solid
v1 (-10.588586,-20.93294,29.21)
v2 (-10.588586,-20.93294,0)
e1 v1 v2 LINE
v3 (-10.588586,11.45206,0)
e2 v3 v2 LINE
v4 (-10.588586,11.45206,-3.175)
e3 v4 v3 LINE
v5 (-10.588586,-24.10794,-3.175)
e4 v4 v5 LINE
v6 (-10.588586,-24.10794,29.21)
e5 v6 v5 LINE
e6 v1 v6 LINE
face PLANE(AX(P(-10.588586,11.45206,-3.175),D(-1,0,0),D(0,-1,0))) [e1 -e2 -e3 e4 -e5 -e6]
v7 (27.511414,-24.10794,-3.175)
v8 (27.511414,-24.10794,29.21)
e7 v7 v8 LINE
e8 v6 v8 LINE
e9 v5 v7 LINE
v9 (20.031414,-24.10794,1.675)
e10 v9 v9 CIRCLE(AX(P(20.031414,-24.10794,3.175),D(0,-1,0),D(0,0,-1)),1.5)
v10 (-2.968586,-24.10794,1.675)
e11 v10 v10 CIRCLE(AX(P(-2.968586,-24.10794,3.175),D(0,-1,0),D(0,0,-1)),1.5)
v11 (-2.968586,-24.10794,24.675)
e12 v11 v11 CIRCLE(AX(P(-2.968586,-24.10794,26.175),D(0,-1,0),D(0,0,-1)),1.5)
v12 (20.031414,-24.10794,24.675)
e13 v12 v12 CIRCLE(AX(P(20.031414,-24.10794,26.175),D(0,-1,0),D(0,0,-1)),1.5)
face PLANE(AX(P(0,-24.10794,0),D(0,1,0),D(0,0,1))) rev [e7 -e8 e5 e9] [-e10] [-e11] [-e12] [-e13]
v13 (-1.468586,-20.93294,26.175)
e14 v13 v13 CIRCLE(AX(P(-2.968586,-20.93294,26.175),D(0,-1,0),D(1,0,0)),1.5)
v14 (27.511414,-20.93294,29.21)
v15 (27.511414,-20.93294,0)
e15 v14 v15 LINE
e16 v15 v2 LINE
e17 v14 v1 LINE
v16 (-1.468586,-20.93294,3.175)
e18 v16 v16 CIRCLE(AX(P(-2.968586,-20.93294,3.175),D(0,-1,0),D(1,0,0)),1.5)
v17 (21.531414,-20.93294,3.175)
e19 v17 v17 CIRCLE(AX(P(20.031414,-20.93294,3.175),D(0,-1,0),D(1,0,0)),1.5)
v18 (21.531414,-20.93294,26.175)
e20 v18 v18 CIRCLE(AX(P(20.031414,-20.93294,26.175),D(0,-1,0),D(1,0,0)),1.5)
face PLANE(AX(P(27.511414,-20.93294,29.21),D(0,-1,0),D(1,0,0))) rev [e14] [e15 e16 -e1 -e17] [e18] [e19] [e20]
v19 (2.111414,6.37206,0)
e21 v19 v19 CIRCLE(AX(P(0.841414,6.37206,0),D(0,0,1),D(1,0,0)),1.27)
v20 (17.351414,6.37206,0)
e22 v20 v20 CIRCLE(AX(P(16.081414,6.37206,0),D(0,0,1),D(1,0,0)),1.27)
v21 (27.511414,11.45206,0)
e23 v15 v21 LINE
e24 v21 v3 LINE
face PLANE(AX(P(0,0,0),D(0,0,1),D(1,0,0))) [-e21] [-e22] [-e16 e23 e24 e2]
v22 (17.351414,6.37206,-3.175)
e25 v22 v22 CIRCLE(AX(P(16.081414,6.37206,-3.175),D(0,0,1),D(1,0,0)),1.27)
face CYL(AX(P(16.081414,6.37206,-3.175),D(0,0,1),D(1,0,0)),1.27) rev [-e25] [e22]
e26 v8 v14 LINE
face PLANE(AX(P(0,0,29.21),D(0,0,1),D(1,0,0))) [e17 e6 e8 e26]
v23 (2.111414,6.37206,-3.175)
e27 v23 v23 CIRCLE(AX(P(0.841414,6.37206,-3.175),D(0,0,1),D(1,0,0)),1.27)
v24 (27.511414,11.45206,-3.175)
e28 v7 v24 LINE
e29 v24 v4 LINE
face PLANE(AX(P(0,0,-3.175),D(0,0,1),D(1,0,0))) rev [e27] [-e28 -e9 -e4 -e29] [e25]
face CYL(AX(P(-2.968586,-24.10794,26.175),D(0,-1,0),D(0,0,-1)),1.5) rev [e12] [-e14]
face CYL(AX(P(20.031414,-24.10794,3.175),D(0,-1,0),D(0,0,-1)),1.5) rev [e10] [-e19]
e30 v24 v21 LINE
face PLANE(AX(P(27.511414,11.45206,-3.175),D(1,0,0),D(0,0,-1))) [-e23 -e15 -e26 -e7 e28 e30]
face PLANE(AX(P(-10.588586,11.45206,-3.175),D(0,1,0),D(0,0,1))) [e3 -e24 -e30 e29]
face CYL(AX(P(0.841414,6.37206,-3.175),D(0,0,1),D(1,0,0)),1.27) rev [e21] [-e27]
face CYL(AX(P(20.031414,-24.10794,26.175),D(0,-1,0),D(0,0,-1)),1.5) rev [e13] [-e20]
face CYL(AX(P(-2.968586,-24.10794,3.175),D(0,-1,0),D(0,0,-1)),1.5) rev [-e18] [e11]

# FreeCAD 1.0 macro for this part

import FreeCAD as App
import Part
import Sketcher

V = App.Vector
Q = App.Units.Quantity


def add_polygon(sketch, points):
    """Adds a closed chain of lines whose ends are joined by coincident constraints."""
    first, n = sketch.GeometryCount, len(points)
    for a, b in zip(points, points[1:] + points[:1]):
        sketch.addGeometry(Part.LineSegment(App.Vector(*a, 0), App.Vector(*b, 0)), False)
    for i in range(n):
        sketch.addConstraint(Sketcher.Constraint("Coincident", first + i, 2, first + (i + 1) % n, 1))

doc = App.newDocument("Part")
params = doc.addObject("Spreadsheet::Sheet", "Params")
for row, (alias, value) in enumerate([
    ("sketch1_diameter", "0.1 in"),
    ("sketch1_width", "1.5 in"),
    ("sketch1_height", "0.4 in"),
    ("pad1_length", "0.125 in"),
    ("sketch2_width", "1.5 in"),
    ("sketch2_height", "0.125 in"),
    ("pad2_length", "1 in"),
    ("sketch3_width", "1.5 in"),
    ("sketch3_height", "0.125 in"),
    ("pad3_length", "1.15 in"),
    ("hole_diameter", "3 mm"),
], start=1):
    params.set(f"A{row}", alias)
    params.set(f"B{row}", "=" + value)
    params.setAlias(f"B{row}", alias)

body = doc.addObject("PartDesign::Body", "Body")

sketch1 = body.newObject("Sketcher::SketchObject", "Sketch")
sketch1.AttachmentSupport = (doc.getObject("XY_Plane"), [""])
sketch1.MapMode = "FlatFace"
add_polygon(sketch1, [(-10.6, 11.5), (-10.6, 1.3), (27.5, 1.3), (27.5, 11.5)])
sketch1.addGeometry(Part.Circle(V(0.8, 6.4, 0), V(0, 0, 1), 1.3), False)
sketch1.addGeometry(Part.Circle(V(16.1, 6.4, 0), V(0, 0, 1), 1.3), False)
sketch1.addConstraint([
    Sketcher.Constraint("Vertical", 0),
    Sketcher.Constraint("Horizontal", 1),
    Sketcher.Constraint("Vertical", 2),
    Sketcher.Constraint("Horizontal", 3),
    Sketcher.Constraint("Equal", 4, 5),
    Sketcher.Constraint("Horizontal", 4, 3, 5, 3),
    Sketcher.Constraint("Diameter", 4, Q("0.1 in")),
    Sketcher.Constraint("DistanceX", 1, 1, 1, 2, Q("1.5 in")),
    Sketcher.Constraint("DistanceY", 0, 2, 0, 1, Q("0.4 in")),
    Sketcher.Constraint("DistanceX", 4, 3, 5, 3, Q("0.6 in")),
    Sketcher.Constraint("DistanceY", 0, 2, 4, 3, Q("0.2 in")),
    Sketcher.Constraint("DistanceX", 0, 2, 4, 3, Q("0.45 in")),
    Sketcher.Constraint("DistanceY", -1, 1, 4, 3, 6.37206),
    Sketcher.Constraint("DistanceX", -1, 1, 4, 3, 0.841414),
])
sketch1.setExpression("Constraints[10]", "Params.sketch1_diameter")
sketch1.setExpression("Constraints[11]", "Params.sketch1_width")
sketch1.setExpression("Constraints[12]", "Params.sketch1_height")
pad1 = body.newObject("PartDesign::Pad", "Pad")
pad1.Profile = sketch1
pad1.setExpression("Length", "Params.pad1_length")
pad1.Reversed = True

sketch2 = body.newObject("Sketcher::SketchObject", "Sketch001")
sketch2.AttachmentSupport = (doc.getObject("XZ_Plane"), [""])
sketch2.MapMode = "FlatFace"
sketch2.AttachmentOffset = App.Placement(V(0, 0, -1.29206), App.Rotation())
add_polygon(sketch2, [(-10.6, 0), (-10.6, -3.2), (27.5, -3.2), (27.5, 0)])
sketch2.addConstraint([
    Sketcher.Constraint("Vertical", 0),
    Sketcher.Constraint("Horizontal", 1),
    Sketcher.Constraint("Vertical", 2),
    Sketcher.Constraint("Horizontal", 3),
    Sketcher.Constraint("PointOnObject", 2, 2, -1),
    Sketcher.Constraint("DistanceX", 1, 1, 1, 2, Q("1.5 in")),
    Sketcher.Constraint("DistanceY", 0, 2, 0, 1, Q("0.125 in")),
    Sketcher.Constraint("DistanceX", 0, 2, -1, 1, 10.588586),
])
sketch2.setExpression("Constraints[9]", "Params.sketch2_width")
sketch2.setExpression("Constraints[10]", "Params.sketch2_height")
pad2 = body.newObject("PartDesign::Pad", "Pad001")
pad2.Profile = sketch2
pad2.setExpression("Length", "Params.pad2_length")

sketch3 = body.newObject("Sketcher::SketchObject", "Sketch002")
sketch3.AttachmentSupport = (doc.getObject("XY_Plane"), [""])
sketch3.MapMode = "FlatFace"
add_polygon(sketch3, [(-10.6, -20.9), (-10.6, -24.1), (27.5, -24.1), (27.5, -20.9)])
sketch3.addConstraint([
    Sketcher.Constraint("Vertical", 0),
    Sketcher.Constraint("Horizontal", 1),
    Sketcher.Constraint("Vertical", 2),
    Sketcher.Constraint("Horizontal", 3),
    Sketcher.Constraint("DistanceX", 1, 1, 1, 2, Q("1.5 in")),
    Sketcher.Constraint("DistanceY", 0, 2, 0, 1, Q("0.125 in")),
    Sketcher.Constraint("DistanceY", 0, 2, -1, 1, 24.10794),
    Sketcher.Constraint("DistanceX", 0, 2, -1, 1, 10.588586),
])
sketch3.setExpression("Constraints[8]", "Params.sketch3_width")
sketch3.setExpression("Constraints[9]", "Params.sketch3_height")
pad3 = body.newObject("PartDesign::Pad", "Pad002")
pad3.Profile = sketch3
pad3.setExpression("Length", "Params.pad3_length")

sketch4 = body.newObject("Sketcher::SketchObject", "Sketch003")
sketch4.AttachmentSupport = (doc.getObject("XZ_Plane"), [""])
sketch4.MapMode = "FlatFace"
sketch4.AttachmentOffset = App.Placement(V(0, 0, 24.10794), App.Rotation())
sketch4.addGeometry([
    Part.Circle(V(-3, 3.2, 0), V(0, 0, 1), 1.5),
    Part.Circle(V(20, 3.2, 0), V(0, 0, 1), 1.5),
    Part.Circle(V(20, 26.2, 0), V(0, 0, 1), 1.5),
    Part.Circle(V(-3, 26.2, 0), V(0, 0, 1), 1.5),
], False)
sketch4.addConstraint([
    Sketcher.Constraint("Equal", 0, 1),
    Sketcher.Constraint("Equal", 1, 2),
    Sketcher.Constraint("Equal", 2, 3),
    Sketcher.Constraint("Horizontal", 0, 3, 1, 3),
    Sketcher.Constraint("Horizontal", 2, 3, 3, 3),
    Sketcher.Constraint("Vertical", 1, 3, 2, 3),
    Sketcher.Constraint("Vertical", 0, 3, 3, 3),
    Sketcher.Constraint("Diameter", 0, 3.0),
    Sketcher.Constraint("DistanceY", -1, 1, 0, 3, Q("0.125 in")),
    Sketcher.Constraint("DistanceY", -1, 1, 2, 3, 26.175),
    Sketcher.Constraint("DistanceX", 0, 3, 1, 3, 23.0),
    Sketcher.Constraint("DistanceX", 0, 3, -1, 1, 2.968586),
])
doc.recompute()
hole = body.newObject("PartDesign::Hole", "Hole")
hole.Profile = sketch4
hole.ThreadType = "None"
hole.setExpression("Diameter", "Params.hole_diameter")
hole.DepthType = "ThroughAll"

doc.recompute()
